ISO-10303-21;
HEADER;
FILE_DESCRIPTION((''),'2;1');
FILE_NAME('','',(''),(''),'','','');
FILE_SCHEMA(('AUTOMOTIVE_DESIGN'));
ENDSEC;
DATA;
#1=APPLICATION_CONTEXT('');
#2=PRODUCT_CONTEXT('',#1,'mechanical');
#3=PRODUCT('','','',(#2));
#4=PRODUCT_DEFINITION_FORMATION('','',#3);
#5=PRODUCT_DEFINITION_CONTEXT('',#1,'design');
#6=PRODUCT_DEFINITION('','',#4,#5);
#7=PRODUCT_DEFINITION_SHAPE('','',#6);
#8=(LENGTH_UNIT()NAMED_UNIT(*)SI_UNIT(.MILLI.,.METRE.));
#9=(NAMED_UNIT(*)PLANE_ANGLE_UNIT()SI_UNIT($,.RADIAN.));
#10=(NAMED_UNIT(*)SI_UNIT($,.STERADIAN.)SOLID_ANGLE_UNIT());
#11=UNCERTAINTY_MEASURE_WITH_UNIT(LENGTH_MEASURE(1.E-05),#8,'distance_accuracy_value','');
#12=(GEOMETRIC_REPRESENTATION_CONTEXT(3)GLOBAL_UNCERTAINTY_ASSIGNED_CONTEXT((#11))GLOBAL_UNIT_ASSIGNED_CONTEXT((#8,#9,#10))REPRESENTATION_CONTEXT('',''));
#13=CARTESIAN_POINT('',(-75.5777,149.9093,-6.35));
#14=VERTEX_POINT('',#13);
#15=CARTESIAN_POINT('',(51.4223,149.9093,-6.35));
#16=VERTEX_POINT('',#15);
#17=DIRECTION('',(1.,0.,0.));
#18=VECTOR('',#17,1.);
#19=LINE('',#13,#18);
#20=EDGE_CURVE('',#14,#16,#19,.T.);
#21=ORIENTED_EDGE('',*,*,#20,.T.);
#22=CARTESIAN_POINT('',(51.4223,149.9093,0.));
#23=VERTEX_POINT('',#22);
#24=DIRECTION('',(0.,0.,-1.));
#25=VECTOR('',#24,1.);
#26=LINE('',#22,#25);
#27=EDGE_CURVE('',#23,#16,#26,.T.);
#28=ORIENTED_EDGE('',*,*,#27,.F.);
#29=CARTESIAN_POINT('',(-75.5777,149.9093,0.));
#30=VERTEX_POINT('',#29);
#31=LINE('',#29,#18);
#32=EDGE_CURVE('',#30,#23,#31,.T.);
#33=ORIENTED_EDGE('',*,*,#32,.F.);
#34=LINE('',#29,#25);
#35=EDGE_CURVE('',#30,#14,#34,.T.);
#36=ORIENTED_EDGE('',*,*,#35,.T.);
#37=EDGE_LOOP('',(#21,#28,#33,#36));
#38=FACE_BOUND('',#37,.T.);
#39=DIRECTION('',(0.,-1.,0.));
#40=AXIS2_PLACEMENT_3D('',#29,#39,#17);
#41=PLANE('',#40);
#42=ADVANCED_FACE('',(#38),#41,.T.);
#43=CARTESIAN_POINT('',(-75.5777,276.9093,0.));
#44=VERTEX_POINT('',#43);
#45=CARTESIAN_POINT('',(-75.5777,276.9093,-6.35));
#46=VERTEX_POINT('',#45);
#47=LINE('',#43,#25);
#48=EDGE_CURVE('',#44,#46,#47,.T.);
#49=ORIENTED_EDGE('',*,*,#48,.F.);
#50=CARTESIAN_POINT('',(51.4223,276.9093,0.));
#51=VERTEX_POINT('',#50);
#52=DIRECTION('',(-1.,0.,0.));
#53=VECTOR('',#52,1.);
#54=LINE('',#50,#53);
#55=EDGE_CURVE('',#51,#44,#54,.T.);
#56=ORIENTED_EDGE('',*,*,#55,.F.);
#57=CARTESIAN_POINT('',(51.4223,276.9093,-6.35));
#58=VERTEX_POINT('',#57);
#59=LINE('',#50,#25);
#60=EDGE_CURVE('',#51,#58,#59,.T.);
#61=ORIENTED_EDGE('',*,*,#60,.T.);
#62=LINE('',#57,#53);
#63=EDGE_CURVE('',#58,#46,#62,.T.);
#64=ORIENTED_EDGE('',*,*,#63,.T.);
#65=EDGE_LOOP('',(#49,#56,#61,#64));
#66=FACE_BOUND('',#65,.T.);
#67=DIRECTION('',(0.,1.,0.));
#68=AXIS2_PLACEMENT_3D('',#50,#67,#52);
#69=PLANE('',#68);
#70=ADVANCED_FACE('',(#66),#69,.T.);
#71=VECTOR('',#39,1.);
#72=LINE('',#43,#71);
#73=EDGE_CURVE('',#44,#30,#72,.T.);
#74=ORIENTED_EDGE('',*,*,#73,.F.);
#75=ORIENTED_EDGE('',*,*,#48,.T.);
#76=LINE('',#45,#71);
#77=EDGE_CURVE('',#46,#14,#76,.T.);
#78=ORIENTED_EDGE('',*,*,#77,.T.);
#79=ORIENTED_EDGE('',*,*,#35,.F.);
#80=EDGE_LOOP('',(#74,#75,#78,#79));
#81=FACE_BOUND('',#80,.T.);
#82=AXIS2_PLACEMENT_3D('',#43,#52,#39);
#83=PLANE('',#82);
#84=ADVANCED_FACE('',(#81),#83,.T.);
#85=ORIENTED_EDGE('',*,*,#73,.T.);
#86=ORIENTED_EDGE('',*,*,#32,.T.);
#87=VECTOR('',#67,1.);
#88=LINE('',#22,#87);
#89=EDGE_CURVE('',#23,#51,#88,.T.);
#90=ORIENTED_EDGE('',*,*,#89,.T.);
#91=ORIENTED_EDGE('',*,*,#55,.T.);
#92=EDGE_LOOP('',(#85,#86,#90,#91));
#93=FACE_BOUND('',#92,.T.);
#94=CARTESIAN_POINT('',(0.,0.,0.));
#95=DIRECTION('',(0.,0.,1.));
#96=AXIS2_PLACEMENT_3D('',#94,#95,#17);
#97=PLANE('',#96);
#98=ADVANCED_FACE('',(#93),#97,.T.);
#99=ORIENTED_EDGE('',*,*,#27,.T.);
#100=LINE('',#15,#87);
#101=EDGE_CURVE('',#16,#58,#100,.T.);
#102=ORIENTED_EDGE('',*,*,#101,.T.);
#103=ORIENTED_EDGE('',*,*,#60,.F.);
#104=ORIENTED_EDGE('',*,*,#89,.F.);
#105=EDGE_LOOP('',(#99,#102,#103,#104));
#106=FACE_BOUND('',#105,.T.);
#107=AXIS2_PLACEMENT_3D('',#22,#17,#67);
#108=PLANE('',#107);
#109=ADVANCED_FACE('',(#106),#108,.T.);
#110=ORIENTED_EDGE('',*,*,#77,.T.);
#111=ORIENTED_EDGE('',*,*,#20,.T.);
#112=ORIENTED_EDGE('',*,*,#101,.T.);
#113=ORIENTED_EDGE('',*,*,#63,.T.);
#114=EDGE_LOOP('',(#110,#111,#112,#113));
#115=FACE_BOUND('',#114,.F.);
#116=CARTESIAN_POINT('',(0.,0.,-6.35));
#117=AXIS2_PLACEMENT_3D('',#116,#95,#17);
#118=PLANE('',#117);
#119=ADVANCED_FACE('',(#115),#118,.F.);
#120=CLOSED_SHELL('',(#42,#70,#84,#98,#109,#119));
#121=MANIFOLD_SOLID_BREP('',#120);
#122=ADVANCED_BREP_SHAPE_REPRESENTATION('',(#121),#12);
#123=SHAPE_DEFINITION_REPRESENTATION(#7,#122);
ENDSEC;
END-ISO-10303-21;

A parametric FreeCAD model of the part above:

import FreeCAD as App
import Part
import Sketcher

V = App.Vector
Q = App.Units.Quantity


def add_polygon(sketch, points):
    """Adds a closed chain of lines whose ends are joined by coincident constraints."""
    first, n = sketch.GeometryCount, len(points)
    for a, b in zip(points, points[1:] + points[:1]):
        sketch.addGeometry(Part.LineSegment(App.Vector(*a, 0), App.Vector(*b, 0)), False)
    for i in range(n):
        sketch.addConstraint(Sketcher.Constraint("Coincident", first + i, 2, first + (i + 1) % n, 1))

doc = App.newDocument("Part")
body = doc.addObject("PartDesign::Body", "Body")

# Sketch on XY plane
sketch1 = body.newObject("Sketcher::SketchObject", "Sketch")
sketch1.AttachmentSupport = (doc.getObject("XY_Plane"), [""])
sketch1.MapMode = "FlatFace"
add_polygon(sketch1, [(51.4223, 149.9093), (51.4223, 276.9093), (-75.5777, 276.9093), (-75.5777, 149.9093)])  # lines 0-3
sketch1.addConstraint([
    Sketcher.Constraint("Vertical", 0),
    Sketcher.Constraint("Horizontal", 1),
    Sketcher.Constraint("Vertical", 2),
    Sketcher.Constraint("Horizontal", 3),
    Sketcher.Constraint("Equal", 3, 0),
    Sketcher.Constraint("DistanceX", 1, 2, 1, 1, Q("5 in")),
    Sketcher.Constraint("DistanceX", -1, 1, 0, 2, Q("2.0245 in")),
    Sketcher.Constraint("DistanceY", -1, 1, 0, 2, Q("276.9093 mm")),
])
pad1 = body.newObject("PartDesign::Pad", "Pad")
pad1.Profile = sketch1
pad1.Length = Q("0.25 in")
pad1.Reversed = True

doc.recompute()
